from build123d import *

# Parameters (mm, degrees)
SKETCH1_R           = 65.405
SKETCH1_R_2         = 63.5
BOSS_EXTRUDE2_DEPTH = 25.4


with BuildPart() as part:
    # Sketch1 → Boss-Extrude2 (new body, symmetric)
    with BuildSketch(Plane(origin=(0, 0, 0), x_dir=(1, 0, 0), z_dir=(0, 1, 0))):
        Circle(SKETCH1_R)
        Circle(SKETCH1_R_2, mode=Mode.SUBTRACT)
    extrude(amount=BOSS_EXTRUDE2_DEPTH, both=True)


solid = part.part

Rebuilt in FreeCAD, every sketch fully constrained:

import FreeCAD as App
import Part
import Sketcher
Q = App.Units.Quantity

doc = App.newDocument("Part")
params = doc.addObject("Spreadsheet::Sheet", "Params")
for row, (alias, value) in enumerate([
    ("sketch1_diameter", "5 in"),
    ("sketch1_diameter2", "5.15 in"),
    ("pad1_length", "2 in"),
], start=1):
    params.set(f"A{row}", alias)
    params.set(f"B{row}", "=" + value)
    params.setAlias(f"B{row}", alias)

body = doc.addObject("PartDesign::Body", "Body")

# Sketch on XZ plane
sketch1 = doc.addObject("Sketcher::SketchObject", "Sketch")
body.addObject(sketch1)
sketch1.AttachmentSupport = (doc.XZ_Plane, [""])
sketch1.MapMode = "FlatFace"
sketch1.addGeometry(Part.Circle(App.Vector(0, 0, 0), App.Vector(0, 0, 1), 65.405), False)
sketch1.addGeometry(Part.Circle(App.Vector(0, 0, 0), App.Vector(0, 0, 1), 63.5), False)
sketch1.addConstraint(Sketcher.Constraint("Coincident", 0, 3, -1, 1))
sketch1.addConstraint(Sketcher.Constraint("Coincident", 1, 3, -1, 1))
sketch1.addConstraint(Sketcher.Constraint("Diameter", 1, Q("5 in")))
sketch1.addConstraint(Sketcher.Constraint("Diameter", 0, Q("5.15 in")))
sketch1.setExpression("Constraints[2]", "Params.sketch1_diameter")
sketch1.setExpression("Constraints[3]", "Params.sketch1_diameter2")
pad1 = doc.addObject("PartDesign::Pad", "Pad")
body.addObject(pad1)
pad1.Profile = sketch1
pad1.setExpression("Length", "Params.pad1_length")
pad1.Midplane = True

doc.recompute()
